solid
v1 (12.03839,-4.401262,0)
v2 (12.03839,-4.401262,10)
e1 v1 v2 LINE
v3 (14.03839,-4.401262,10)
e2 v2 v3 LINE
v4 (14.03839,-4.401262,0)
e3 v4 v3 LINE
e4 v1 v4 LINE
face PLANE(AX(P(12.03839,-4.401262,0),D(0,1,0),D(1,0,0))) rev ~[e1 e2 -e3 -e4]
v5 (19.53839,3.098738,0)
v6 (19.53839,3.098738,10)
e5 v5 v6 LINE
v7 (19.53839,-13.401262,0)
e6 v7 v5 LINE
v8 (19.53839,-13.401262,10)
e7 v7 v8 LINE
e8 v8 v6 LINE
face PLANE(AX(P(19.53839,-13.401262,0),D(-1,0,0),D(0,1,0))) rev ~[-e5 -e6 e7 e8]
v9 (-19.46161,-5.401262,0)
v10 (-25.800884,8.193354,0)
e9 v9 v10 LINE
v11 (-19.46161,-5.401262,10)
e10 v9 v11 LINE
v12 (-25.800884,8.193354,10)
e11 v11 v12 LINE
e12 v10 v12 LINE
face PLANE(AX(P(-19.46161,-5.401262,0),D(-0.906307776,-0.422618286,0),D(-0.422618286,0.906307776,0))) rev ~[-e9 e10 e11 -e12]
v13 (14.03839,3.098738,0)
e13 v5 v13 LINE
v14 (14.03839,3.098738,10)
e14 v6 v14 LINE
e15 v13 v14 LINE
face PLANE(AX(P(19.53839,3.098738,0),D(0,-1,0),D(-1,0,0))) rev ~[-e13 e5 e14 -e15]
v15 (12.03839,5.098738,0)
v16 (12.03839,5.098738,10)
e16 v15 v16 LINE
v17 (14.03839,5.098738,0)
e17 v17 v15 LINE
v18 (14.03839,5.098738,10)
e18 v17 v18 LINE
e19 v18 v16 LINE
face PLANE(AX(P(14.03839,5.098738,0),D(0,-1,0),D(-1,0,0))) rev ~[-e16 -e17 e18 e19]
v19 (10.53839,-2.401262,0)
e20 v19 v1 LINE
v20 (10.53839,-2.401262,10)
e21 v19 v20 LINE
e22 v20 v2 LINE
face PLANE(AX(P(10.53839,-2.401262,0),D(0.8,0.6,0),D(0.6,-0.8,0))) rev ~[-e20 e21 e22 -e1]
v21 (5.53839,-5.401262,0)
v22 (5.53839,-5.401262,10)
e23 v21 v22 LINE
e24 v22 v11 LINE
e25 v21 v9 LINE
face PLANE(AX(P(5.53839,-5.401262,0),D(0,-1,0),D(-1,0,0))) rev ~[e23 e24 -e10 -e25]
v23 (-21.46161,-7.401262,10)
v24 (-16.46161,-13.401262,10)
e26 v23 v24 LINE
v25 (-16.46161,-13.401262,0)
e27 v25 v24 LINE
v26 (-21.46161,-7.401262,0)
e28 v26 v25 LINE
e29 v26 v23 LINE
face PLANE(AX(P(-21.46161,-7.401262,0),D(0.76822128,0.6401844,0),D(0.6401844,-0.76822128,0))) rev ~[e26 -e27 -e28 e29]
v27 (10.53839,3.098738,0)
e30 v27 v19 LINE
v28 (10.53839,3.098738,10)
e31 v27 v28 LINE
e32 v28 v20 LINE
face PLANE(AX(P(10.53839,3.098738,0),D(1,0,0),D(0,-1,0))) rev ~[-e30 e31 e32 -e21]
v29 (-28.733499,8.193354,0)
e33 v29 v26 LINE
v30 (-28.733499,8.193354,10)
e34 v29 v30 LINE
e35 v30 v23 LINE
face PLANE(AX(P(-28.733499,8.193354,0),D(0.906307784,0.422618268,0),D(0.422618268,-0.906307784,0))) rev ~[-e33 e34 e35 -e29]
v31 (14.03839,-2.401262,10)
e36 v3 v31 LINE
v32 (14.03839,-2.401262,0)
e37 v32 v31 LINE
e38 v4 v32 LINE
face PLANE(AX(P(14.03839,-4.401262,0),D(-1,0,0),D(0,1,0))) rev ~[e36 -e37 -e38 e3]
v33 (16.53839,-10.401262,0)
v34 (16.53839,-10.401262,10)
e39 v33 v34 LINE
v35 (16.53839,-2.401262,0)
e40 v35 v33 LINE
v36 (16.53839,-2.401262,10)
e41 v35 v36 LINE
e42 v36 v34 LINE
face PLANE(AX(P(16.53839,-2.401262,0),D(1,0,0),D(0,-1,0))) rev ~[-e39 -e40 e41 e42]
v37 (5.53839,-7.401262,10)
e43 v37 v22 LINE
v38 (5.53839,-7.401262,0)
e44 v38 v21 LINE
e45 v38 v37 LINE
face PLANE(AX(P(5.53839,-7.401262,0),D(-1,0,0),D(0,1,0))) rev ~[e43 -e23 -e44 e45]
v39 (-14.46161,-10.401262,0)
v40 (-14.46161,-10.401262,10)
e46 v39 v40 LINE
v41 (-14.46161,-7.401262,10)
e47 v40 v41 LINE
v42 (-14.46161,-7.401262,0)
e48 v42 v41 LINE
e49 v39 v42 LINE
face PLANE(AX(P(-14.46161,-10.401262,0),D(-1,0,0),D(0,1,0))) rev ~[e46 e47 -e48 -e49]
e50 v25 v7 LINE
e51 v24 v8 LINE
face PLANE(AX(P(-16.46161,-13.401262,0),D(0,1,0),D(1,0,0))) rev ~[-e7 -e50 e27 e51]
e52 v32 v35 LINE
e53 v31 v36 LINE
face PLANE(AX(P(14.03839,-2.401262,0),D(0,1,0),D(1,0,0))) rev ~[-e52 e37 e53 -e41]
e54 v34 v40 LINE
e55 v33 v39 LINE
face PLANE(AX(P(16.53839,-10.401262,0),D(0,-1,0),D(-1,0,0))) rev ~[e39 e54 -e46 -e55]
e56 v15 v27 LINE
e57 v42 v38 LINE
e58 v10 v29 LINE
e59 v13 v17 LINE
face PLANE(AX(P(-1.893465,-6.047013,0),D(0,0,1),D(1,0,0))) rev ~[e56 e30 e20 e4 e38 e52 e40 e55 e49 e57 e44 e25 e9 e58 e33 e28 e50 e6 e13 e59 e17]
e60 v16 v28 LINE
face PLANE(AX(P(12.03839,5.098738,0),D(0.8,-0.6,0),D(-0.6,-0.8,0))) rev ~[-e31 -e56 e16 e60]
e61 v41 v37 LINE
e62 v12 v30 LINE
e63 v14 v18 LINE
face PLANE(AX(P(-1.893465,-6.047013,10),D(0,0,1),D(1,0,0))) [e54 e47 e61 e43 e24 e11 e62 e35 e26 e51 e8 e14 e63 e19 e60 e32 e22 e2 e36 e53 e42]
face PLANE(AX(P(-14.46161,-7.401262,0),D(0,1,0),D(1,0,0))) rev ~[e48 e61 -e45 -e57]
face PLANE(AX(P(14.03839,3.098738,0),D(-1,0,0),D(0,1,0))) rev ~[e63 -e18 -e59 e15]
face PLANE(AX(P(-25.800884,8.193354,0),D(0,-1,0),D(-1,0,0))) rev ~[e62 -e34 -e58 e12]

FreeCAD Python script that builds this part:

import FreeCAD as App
import Part
import Sketcher
Q = App.Units.Quantity

doc = App.newDocument("Part")
body = doc.addObject("PartDesign::Body", "Body")

# Sketch on XY plane
sketch1 = body.newObject("Sketcher::SketchObject", "Sketch")
sketch1.AttachmentSupport = (doc.getObject("XY_Plane"), [""])
sketch1.MapMode = "FlatFace"
sketch1.addGeometry([
    Part.LineSegment(App.Vector(14.03839, -4.401262, 0), App.Vector(14.03839, -2.401262, 0)),  # 0
    Part.LineSegment(App.Vector(14.03839, -2.401262, 0), App.Vector(16.53839, -2.401262, 0)),  # 1
    Part.LineSegment(App.Vector(16.53839, -2.401262, 0), App.Vector(16.53839, -10.401262, 0)),  # 2
    Part.LineSegment(App.Vector(16.53839, -10.401262, 0), App.Vector(-14.46161, -10.401262, 0)),  # 3
    Part.LineSegment(App.Vector(-14.46161, -10.401262, 0), App.Vector(-14.46161, -7.401262, 0)),  # 4
    Part.LineSegment(App.Vector(-14.46161, -7.401262, 0), App.Vector(5.53839, -7.401262, 0)),  # 5
    Part.LineSegment(App.Vector(5.53839, -7.401262, 0), App.Vector(5.53839, -5.401262, 0)),  # 6
    Part.LineSegment(App.Vector(5.53839, -5.401262, 0), App.Vector(-19.46161, -5.401262, 0)),  # 7
    Part.LineSegment(App.Vector(-19.46161, -5.401262, 0), App.Vector(-25.800884, 8.193354, 0)),  # 8
    Part.LineSegment(App.Vector(-25.800884, 8.193354, 0), App.Vector(-28.733499, 8.193354, 0)),  # 9
    Part.LineSegment(App.Vector(-28.733499, 8.193354, 0), App.Vector(-21.46161, -7.401262, 0)),  # 10
    Part.LineSegment(App.Vector(-21.46161, -7.401262, 0), App.Vector(-16.46161, -13.401262, 0)),  # 11
    Part.LineSegment(App.Vector(-16.46161, -13.401262, 0), App.Vector(19.53839, -13.401262, 0)),  # 12
    Part.LineSegment(App.Vector(19.53839, -13.401262, 0), App.Vector(19.53839, 3.098738, 0)),  # 13
    Part.LineSegment(App.Vector(19.53839, 3.098738, 0), App.Vector(14.03839, 3.098738, 0)),  # 14
    Part.LineSegment(App.Vector(14.03839, 3.098738, 0), App.Vector(14.03839, 5.098738, 0)),  # 15
    Part.LineSegment(App.Vector(14.03839, 5.098738, 0), App.Vector(12.03839, 5.098738, 0)),  # 16
    Part.LineSegment(App.Vector(12.03839, 5.098738, 0), App.Vector(10.53839, 3.098738, 0)),  # 17
    Part.LineSegment(App.Vector(10.53839, 3.098738, 0), App.Vector(10.53839, -2.401262, 0)),  # 18
    Part.LineSegment(App.Vector(10.53839, -2.401262, 0), App.Vector(12.03839, -4.401262, 0)),  # 19
    Part.LineSegment(App.Vector(12.03839, -4.401262, 0), App.Vector(14.03839, -4.401262, 0)),  # 20
], False)
sketch1.addConstraint([
    Sketcher.Constraint("Coincident", 0, 2, 1, 1),
    Sketcher.Constraint("Coincident", 1, 2, 2, 1),
    Sketcher.Constraint("Coincident", 2, 2, 3, 1),
    Sketcher.Constraint("Coincident", 3, 2, 4, 1),
    Sketcher.Constraint("Coincident", 4, 2, 5, 1),
    Sketcher.Constraint("Coincident", 5, 2, 6, 1),
    Sketcher.Constraint("Coincident", 6, 2, 7, 1),
    Sketcher.Constraint("Coincident", 7, 2, 8, 1),
    Sketcher.Constraint("Coincident", 8, 2, 9, 1),
    Sketcher.Constraint("Coincident", 9, 2, 10, 1),
    Sketcher.Constraint("Coincident", 10, 2, 11, 1),
    Sketcher.Constraint("Coincident", 11, 2, 12, 1),
    Sketcher.Constraint("Coincident", 12, 2, 13, 1),
    Sketcher.Constraint("Coincident", 13, 2, 14, 1),
    Sketcher.Constraint("Coincident", 14, 2, 15, 1),
    Sketcher.Constraint("Coincident", 15, 2, 16, 1),
    Sketcher.Constraint("Coincident", 16, 2, 17, 1),
    Sketcher.Constraint("Coincident", 17, 2, 18, 1),
    Sketcher.Constraint("Coincident", 18, 2, 19, 1),
    Sketcher.Constraint("Coincident", 19, 2, 20, 1),
    Sketcher.Constraint("Coincident", 20, 2, 0, 1),
    Sketcher.Constraint("Vertical", 0),
    Sketcher.Constraint("Horizontal", 1),
    Sketcher.Constraint("Vertical", 2),
    Sketcher.Constraint("Horizontal", 3),
    Sketcher.Constraint("Vertical", 4),
    Sketcher.Constraint("Horizontal", 5),
    Sketcher.Constraint("Vertical", 6),
    Sketcher.Constraint("Horizontal", 7),
    Sketcher.Constraint("Horizontal", 9),
    Sketcher.Constraint("Horizontal", 12),
    Sketcher.Constraint("Vertical", 13),
    Sketcher.Constraint("Horizontal", 14),
    Sketcher.Constraint("Vertical", 15),
    Sketcher.Constraint("Horizontal", 16),
    Sketcher.Constraint("Vertical", 18),
    Sketcher.Constraint("Horizontal", 20),
    Sketcher.Constraint("Parallel", 8, 10),
    Sketcher.Constraint("Horizontal", 5, 2, 10, 2),
    Sketcher.Constraint("Horizontal", 14, 2, 17, 2),
    Sketcher.Constraint("Horizontal", 1, 2, 18, 2),
    Sketcher.Constraint("Vertical", 0, 2, 14, 2),
    Sketcher.Constraint("Vertical", 16, 2, 19, 2),
    Sketcher.Constraint("Equal", 20, 0),
    Sketcher.Constraint("Equal", 0, 6),
    Sketcher.Constraint("Equal", 6, 15),
    Sketcher.Constraint("Equal", 14, 18),
    Sketcher.Constraint("DistanceX", 3, 2, 3, 1, Q("31 mm")),
    Sketcher.Constraint("DistanceX", 5, 1, 5, 2, Q("20 mm")),
    Sketcher.Constraint("DistanceX", 7, 2, 7, 1, Q("25 mm")),
    Sketcher.Constraint("DistanceX", 12, 1, 12, 2, Q("36 mm")),
    Sketcher.Constraint("DistanceX", 16, 2, 16, 1, Q("2 mm")),
    Sketcher.Constraint("DistanceY", 2, 2, 2, 1, Q("8 mm")),
    Sketcher.Constraint("DistanceY", 4, 1, 4, 2, Q("3 mm")),
    Sketcher.Constraint("Angle", 8, Q("115.000002 deg")),
    Sketcher.Constraint("Distance", 8, Q("14.999999 mm")),
    Sketcher.Constraint("DistanceX", 1, 1, 1, 2, Q("2.5 mm")),
    Sketcher.Constraint("DistanceX", 14, 2, 14, 1, Q("5.5 mm")),
    Sketcher.Constraint("DistanceY", 13, 1, 13, 2, Q("16.5 mm")),
    Sketcher.Constraint("DistanceX", 10, 2, 7, 2, Q("2 mm")),
    Sketcher.Constraint("DistanceX", 17, 2, 1, 2, Q("6 mm")),
    Sketcher.Constraint("DistanceX", 9, 2, -1, 1, Q("28.733499 mm")),
    Sketcher.Constraint("DistanceY", 0, 2, -1, 1, Q("2.401262 mm")),
])
pad1 = body.newObject("PartDesign::Pad", "Pad")
pad1.Profile = sketch1
pad1.Length = 10

doc.recompute()
